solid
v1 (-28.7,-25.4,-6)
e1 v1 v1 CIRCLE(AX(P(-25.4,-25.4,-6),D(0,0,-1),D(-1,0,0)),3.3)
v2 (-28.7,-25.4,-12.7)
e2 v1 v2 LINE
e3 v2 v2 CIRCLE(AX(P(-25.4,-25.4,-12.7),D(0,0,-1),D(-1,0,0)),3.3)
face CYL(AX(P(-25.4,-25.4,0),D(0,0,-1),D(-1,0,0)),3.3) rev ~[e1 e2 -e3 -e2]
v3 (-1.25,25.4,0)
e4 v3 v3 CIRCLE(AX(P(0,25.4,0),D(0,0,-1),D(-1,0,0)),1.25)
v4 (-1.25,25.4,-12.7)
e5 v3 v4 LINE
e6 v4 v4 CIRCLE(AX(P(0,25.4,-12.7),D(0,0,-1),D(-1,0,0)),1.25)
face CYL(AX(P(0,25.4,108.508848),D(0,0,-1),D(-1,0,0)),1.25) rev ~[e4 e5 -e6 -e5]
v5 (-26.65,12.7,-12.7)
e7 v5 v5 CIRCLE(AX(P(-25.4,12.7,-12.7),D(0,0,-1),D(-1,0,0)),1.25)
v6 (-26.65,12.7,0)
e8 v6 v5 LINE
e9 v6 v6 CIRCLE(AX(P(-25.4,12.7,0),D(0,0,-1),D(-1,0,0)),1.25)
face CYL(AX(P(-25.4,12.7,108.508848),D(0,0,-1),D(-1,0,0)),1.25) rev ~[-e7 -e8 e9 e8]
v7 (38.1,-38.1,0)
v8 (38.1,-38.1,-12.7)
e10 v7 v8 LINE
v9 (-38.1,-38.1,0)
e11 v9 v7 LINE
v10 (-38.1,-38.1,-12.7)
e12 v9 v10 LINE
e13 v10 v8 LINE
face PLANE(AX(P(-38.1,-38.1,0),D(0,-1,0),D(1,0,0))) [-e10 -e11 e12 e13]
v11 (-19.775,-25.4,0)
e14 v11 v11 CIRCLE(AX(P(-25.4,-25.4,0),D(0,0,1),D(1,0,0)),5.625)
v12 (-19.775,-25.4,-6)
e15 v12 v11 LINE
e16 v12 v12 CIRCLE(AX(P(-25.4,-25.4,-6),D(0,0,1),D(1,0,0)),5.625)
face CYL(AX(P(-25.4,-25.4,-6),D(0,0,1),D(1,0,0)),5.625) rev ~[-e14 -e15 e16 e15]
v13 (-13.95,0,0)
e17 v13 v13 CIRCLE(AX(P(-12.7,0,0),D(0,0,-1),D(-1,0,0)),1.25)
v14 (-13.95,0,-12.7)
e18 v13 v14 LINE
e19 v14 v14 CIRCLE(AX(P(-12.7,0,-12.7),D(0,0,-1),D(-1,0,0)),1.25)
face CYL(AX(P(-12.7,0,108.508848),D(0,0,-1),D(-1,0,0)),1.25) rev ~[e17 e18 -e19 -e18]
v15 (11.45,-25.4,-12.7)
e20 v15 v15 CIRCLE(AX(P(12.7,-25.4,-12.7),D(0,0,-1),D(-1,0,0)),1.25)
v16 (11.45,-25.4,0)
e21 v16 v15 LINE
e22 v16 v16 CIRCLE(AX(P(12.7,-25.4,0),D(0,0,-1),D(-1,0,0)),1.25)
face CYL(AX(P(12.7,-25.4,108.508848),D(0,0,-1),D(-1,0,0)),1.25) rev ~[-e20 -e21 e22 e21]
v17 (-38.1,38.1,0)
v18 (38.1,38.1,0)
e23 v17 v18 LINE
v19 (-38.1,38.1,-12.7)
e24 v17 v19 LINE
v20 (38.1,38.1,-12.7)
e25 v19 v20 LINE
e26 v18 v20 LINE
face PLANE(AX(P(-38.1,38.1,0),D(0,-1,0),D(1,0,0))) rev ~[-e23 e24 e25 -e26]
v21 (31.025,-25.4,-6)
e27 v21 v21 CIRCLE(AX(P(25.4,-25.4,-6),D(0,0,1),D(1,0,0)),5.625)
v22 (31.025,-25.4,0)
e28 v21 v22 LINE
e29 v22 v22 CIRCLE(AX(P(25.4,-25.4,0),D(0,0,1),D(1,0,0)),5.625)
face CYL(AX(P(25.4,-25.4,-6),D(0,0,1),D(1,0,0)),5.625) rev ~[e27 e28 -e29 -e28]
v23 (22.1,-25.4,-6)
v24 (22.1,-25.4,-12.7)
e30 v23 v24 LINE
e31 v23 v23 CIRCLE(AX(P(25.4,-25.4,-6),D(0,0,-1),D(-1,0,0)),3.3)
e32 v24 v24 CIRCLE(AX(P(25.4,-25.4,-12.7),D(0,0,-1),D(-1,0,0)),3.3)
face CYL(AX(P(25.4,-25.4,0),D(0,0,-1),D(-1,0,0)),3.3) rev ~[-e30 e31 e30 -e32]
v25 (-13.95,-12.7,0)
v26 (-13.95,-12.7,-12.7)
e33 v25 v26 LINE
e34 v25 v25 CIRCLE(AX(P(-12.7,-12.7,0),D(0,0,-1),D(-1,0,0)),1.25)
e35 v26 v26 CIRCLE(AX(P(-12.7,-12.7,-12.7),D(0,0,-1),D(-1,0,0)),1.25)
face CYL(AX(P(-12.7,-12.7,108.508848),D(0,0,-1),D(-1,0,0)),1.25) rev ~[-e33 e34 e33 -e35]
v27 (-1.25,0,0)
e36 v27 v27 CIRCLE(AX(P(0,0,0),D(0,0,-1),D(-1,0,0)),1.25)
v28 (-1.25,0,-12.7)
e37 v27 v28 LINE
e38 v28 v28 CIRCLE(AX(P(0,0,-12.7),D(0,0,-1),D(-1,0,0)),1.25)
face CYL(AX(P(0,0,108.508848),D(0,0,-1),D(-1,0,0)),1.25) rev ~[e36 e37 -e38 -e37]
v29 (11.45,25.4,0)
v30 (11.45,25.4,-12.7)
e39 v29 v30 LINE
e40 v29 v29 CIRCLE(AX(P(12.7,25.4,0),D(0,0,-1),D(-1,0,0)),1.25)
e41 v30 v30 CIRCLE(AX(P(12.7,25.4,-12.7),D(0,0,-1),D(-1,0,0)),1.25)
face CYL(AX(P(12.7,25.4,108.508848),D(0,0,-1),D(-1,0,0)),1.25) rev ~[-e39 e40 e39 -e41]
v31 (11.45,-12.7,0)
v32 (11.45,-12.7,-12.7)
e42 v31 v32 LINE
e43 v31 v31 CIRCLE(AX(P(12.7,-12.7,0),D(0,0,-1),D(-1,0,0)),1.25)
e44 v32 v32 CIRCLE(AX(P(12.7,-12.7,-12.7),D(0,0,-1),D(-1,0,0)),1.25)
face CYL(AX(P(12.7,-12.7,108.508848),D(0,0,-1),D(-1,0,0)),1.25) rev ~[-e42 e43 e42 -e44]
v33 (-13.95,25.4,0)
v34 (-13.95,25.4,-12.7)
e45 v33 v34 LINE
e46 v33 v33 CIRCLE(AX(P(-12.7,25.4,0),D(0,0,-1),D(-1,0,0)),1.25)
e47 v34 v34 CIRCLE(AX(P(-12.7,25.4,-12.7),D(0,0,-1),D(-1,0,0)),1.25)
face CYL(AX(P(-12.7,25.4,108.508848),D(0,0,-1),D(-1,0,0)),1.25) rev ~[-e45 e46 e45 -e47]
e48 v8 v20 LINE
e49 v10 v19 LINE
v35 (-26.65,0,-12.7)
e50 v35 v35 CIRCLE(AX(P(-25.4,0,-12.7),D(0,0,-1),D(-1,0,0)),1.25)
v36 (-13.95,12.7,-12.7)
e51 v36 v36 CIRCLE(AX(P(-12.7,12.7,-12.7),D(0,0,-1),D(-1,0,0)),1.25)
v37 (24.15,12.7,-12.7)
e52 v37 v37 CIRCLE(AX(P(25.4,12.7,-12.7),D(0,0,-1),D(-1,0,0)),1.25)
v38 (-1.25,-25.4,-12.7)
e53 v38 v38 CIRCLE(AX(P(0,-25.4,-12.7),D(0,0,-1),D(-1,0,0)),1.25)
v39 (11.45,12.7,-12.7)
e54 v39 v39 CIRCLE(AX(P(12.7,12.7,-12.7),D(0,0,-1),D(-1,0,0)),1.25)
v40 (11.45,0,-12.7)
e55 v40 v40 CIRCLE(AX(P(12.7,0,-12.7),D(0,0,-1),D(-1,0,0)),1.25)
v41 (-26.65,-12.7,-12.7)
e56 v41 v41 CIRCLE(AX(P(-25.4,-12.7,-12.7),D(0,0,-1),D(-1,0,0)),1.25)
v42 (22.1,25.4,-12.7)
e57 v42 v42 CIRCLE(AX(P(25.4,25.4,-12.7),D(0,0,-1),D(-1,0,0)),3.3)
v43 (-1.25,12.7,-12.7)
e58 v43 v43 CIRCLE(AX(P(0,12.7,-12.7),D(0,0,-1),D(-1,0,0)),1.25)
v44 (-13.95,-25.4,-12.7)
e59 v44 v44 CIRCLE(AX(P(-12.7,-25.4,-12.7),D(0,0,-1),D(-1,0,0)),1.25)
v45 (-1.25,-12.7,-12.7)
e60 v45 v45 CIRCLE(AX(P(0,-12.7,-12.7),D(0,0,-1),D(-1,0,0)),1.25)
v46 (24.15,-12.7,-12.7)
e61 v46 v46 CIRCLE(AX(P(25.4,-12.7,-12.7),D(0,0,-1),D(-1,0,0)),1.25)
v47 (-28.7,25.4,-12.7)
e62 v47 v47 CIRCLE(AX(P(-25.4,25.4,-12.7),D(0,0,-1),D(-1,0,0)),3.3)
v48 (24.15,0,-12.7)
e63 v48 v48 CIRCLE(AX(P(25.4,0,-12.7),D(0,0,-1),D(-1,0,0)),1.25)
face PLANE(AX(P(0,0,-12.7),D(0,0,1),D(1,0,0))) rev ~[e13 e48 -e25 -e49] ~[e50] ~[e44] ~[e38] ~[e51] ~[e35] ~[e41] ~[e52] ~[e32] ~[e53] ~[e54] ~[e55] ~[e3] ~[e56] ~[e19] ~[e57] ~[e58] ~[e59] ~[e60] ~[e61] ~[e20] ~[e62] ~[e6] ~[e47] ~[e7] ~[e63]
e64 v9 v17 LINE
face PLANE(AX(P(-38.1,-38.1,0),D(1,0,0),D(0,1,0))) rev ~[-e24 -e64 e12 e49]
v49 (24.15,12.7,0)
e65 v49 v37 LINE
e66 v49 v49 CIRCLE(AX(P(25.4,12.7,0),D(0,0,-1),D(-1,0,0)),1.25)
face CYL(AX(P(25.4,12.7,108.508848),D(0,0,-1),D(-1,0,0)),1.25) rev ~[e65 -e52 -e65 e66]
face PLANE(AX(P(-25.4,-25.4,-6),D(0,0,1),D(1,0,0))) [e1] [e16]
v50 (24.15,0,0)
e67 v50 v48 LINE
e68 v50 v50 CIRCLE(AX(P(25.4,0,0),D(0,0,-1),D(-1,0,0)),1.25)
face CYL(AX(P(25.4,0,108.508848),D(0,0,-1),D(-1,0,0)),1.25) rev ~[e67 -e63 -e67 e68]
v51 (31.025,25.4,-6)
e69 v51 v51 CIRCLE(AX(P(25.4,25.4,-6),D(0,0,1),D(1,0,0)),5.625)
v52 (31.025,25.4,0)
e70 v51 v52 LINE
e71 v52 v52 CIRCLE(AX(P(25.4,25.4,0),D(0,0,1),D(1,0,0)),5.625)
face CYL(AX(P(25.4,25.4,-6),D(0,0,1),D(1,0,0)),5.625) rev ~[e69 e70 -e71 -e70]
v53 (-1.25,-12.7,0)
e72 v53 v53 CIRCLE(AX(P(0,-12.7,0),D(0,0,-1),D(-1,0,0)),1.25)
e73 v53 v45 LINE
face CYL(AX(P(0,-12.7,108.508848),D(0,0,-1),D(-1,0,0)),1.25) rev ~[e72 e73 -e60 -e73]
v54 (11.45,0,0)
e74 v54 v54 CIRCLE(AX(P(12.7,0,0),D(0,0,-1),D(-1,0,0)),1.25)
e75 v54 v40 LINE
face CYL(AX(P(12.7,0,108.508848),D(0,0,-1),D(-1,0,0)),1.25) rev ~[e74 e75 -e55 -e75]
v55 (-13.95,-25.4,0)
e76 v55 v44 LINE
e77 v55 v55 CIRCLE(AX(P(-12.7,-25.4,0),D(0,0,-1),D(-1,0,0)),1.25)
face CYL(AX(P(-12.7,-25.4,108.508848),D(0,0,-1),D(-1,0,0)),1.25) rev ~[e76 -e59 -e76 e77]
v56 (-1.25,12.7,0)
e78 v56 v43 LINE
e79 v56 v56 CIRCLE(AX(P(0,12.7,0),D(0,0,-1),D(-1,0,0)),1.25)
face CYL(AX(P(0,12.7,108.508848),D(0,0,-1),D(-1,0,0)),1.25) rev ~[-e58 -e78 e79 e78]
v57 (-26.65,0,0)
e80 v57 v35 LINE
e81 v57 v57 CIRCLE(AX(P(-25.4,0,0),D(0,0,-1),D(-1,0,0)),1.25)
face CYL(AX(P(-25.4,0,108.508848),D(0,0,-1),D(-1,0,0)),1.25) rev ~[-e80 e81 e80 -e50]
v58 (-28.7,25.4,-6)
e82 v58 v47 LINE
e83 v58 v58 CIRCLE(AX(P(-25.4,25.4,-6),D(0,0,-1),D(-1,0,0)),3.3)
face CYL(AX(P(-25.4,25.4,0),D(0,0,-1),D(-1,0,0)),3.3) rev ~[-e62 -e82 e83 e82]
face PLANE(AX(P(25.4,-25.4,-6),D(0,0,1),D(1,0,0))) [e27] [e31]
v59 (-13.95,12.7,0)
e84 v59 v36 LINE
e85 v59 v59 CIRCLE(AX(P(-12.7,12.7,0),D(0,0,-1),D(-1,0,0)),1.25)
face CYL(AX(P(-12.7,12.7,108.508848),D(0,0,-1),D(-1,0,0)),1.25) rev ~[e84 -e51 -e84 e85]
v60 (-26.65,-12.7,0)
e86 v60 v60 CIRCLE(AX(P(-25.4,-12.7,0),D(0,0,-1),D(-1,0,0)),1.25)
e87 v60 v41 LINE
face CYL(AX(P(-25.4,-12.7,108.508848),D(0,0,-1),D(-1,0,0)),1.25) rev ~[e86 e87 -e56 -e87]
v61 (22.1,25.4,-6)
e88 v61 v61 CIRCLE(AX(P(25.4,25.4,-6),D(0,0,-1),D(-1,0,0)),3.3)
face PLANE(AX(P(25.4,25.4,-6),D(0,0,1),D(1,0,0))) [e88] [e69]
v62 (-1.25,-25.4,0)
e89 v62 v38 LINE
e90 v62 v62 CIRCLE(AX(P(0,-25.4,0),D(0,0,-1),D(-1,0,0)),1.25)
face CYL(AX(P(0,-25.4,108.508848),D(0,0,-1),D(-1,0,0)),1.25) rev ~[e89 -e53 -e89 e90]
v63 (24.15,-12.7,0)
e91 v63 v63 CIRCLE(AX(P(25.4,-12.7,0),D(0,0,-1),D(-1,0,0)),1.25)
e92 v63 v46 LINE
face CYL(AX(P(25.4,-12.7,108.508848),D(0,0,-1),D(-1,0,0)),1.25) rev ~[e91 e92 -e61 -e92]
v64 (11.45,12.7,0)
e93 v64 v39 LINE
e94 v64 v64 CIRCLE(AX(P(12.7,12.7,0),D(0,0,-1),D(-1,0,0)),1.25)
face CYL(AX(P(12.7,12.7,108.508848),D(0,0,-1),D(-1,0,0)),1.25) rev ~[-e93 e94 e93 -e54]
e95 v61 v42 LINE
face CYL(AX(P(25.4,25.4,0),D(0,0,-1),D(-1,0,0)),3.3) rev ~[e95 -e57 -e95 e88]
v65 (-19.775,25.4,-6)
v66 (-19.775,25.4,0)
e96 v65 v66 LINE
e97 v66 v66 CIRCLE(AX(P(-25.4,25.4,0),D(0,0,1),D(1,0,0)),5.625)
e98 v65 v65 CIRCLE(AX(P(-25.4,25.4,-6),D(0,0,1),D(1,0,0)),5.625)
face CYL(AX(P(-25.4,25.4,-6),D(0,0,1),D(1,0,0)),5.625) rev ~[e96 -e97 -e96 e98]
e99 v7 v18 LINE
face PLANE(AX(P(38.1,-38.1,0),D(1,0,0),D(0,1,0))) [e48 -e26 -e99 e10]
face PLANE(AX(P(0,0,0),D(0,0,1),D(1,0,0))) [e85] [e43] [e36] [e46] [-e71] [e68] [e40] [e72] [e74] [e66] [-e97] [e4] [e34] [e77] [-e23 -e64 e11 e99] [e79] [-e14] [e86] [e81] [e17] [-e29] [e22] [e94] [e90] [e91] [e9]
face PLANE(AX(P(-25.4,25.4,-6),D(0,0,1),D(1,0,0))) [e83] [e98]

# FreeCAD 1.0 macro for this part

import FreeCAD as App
import Part
import Sketcher

V = App.Vector


def add_polygon(sketch, points):
    """Adds a closed chain of lines whose ends are joined by coincident constraints."""
    first, n = sketch.GeometryCount, len(points)
    for a, b in zip(points, points[1:] + points[:1]):
        sketch.addGeometry(Part.LineSegment(App.Vector(*a, 0), App.Vector(*b, 0)), False)
    for i in range(n):
        sketch.addConstraint(Sketcher.Constraint("Coincident", first + i, 2, first + (i + 1) % n, 1))

doc = App.newDocument("Part")
body = doc.addObject("PartDesign::Body", "Body")

# Sketch on XY plane
sketch1 = doc.addObject("Sketcher::SketchObject", "Sketch")
body.addObject(sketch1)
sketch1.AttachmentSupport = (doc.XY_Plane, [""])
sketch1.MapMode = "FlatFace"
add_polygon(sketch1, [(-38, 38), (-38, -38), (38, -38), (38, 38)])  # lines 0-3
sketch1.addConstraint([
    Sketcher.Constraint("Vertical", 0),
    Sketcher.Constraint("Horizontal", 1),
    Sketcher.Constraint("Vertical", 2),
    Sketcher.Constraint("Horizontal", 3),
    Sketcher.Constraint("Symmetric", 0, 2, 2, 2, -1, 1),
    Sketcher.Constraint("Equal", 3, 0),
    Sketcher.Constraint("DistanceX", 1, 1, 1, 2, 76.2),
])
pad1 = doc.addObject("PartDesign::Pad", "Pad")
body.addObject(pad1)
pad1.Profile = sketch1
pad1.Length = 12.7
pad1.Reversed = True

# Sketch on XY plane
sketch2 = doc.addObject("Sketcher::SketchObject", "Sketch001")
body.addObject(sketch2)
sketch2.AttachmentSupport = (doc.XY_Plane, [""])
sketch2.MapMode = "FlatFace"
sketch2.addGeometry([
    Part.Circle(V(-25.4, 12.7, 0), V(0, 0, 1), 1.2),  # 0
    Part.Circle(V(-12.7, 25.4, 0), V(0, 0, 1), 1.2),  # 1
    Part.Circle(V(-12.7, 12.7, 0), V(0, 0, 1), 1.2),  # 2
    Part.Circle(V(0, 12.7, 0), V(0, 0, 1), 1.2),  # 3
    Part.Circle(V(12.7, 25.4, 0), V(0, 0, 1), 1.2),  # 4
    Part.Circle(V(0, 25.4, 0), V(0, 0, 1), 1.2),  # 5
    Part.Circle(V(12.7, 12.7, 0), V(0, 0, 1), 1.2),  # 6
    Part.Circle(V(25.4, 12.7, 0), V(0, 0, 1), 1.2),  # 7
    Part.Circle(V(25.4, 0, 0), V(0, 0, 1), 1.2),  # 8
    Part.Circle(V(12.7, 0, 0), V(0, 0, 1), 1.2),  # 9
    Part.Circle(V(0, 0, 0), V(0, 0, 1), 1.2),  # 10
    Part.Circle(V(-12.7, 0, 0), V(0, 0, 1), 1.2),  # 11
    Part.Circle(V(-25.4, 0, 0), V(0, 0, 1), 1.2),  # 12
    Part.Circle(V(-25.4, -12.7, 0), V(0, 0, 1), 1.2),  # 13
    Part.Circle(V(-12.7, -12.7, 0), V(0, 0, 1), 1.2),  # 14
    Part.Circle(V(0, -12.7, 0), V(0, 0, 1), 1.2),  # 15
    Part.Circle(V(12.7, -12.7, 0), V(0, 0, 1), 1.2),  # 16
    Part.Circle(V(25.4, -12.7, 0), V(0, 0, 1), 1.2),  # 17
    Part.Circle(V(12.7, -25.4, 0), V(0, 0, 1), 1.2),  # 18
    Part.Circle(V(0, -25.4, 0), V(0, 0, 1), 1.2),  # 19
    Part.Circle(V(-12.7, -25.4, 0), V(0, 0, 1), 1.2),  # 20
], False)
sketch2.addConstraint([
    Sketcher.Constraint("Coincident", 10, 3, -1, 1),
    Sketcher.Constraint("Equal", 0, 1),
    Sketcher.Constraint("Equal", 1, 2),
    Sketcher.Constraint("Equal", 2, 3),
    Sketcher.Constraint("Equal", 3, 4),
    Sketcher.Constraint("Equal", 4, 5),
    Sketcher.Constraint("Equal", 5, 6),
    Sketcher.Constraint("Equal", 6, 7),
    Sketcher.Constraint("Equal", 7, 8),
    Sketcher.Constraint("Equal", 8, 9),
    Sketcher.Constraint("Equal", 9, 10),
    Sketcher.Constraint("Equal", 10, 11),
    Sketcher.Constraint("Equal", 11, 12),
    Sketcher.Constraint("Equal", 12, 13),
    Sketcher.Constraint("Equal", 13, 14),
    Sketcher.Constraint("Equal", 14, 15),
    Sketcher.Constraint("Equal", 15, 16),
    Sketcher.Constraint("Equal", 16, 17),
    Sketcher.Constraint("Equal", 17, 18),
    Sketcher.Constraint("Equal", 18, 19),
    Sketcher.Constraint("Equal", 19, 20),
    Sketcher.Constraint("Symmetric", 9, 3, 11, 3, -1, 1),
    Sketcher.Constraint("Symmetric", 8, 3, 12, 3, -1, 1),
    Sketcher.Constraint("Symmetric", 7, 3, 13, 3, -1, 1),
    Sketcher.Constraint("Symmetric", 6, 3, 14, 3, -1, 1),
    Sketcher.Constraint("Symmetric", 3, 3, 15, 3, -1, 1),
    Sketcher.Constraint("Symmetric", 2, 3, 16, 3, -1, 1),
    Sketcher.Constraint("Symmetric", 0, 3, 17, 3, -1, 1),
    Sketcher.Constraint("Symmetric", 1, 3, 18, 3, -1, 1),
    Sketcher.Constraint("Symmetric", 5, 3, 19, 3, -1, 1),
    Sketcher.Constraint("Symmetric", 4, 3, 20, 3, -1, 1),
    Sketcher.Constraint("Symmetric", 1, 3, 4, 3, -2),
    Sketcher.Constraint("Symmetric", 2, 3, 6, 3, -2),
    Sketcher.Constraint("Symmetric", 0, 3, 7, 3, -2),
    Sketcher.Constraint("PointOnObject", 3, 3, -2),
    Sketcher.Constraint("PointOnObject", 5, 3, -2),
    Sketcher.Constraint("PointOnObject", 8, 3, -1),
    Sketcher.Constraint("PointOnObject", 9, 3, -1),
    Sketcher.Constraint("Horizontal", 0, 3, 2, 3),
    Sketcher.Constraint("Horizontal", 2, 3, 3, 3),
    Sketcher.Constraint("Horizontal", 4, 3, 5, 3),
    Sketcher.Constraint("Vertical", 1, 3, 2, 3),
    Sketcher.Constraint("Vertical", 7, 3, 8, 3),
    Sketcher.Constraint("Vertical", 6, 3, 9, 3),
    Sketcher.Constraint("Diameter", 0, 2.5),
    Sketcher.Constraint("DistanceX", 0, 3, -1, 1, 25.4),
    Sketcher.Constraint("DistanceY", -1, 1, 0, 3, 12.7),
    Sketcher.Constraint("DistanceX", 1, 3, -1, 1, 12.7),
    Sketcher.Constraint("DistanceY", -1, 1, 1, 3, 25.4),
])
doc.recompute()
hole = doc.addObject("PartDesign::Hole", "Hole")
body.addObject(hole)
hole.Profile = sketch2
hole.ThreadType = "None"
hole.Diameter = 2.5
hole.DepthType = "ThroughAll"

# Sketch on XY plane
sketch3 = doc.addObject("Sketcher::SketchObject", "Sketch002")
body.addObject(sketch3)
sketch3.AttachmentSupport = (doc.XY_Plane, [""])
sketch3.MapMode = "FlatFace"
sketch3.addGeometry([
    Part.Circle(V(-25.4, 25.4, 0), V(0, 0, 1), 3.3),
    Part.Circle(V(25.4, 25.4, 0), V(0, 0, 1), 3.3),
    Part.Circle(V(25.4, -25.4, 0), V(0, 0, 1), 3.3),
    Part.Circle(V(-25.4, -25.4, 0), V(0, 0, 1), 3.3),
], False)
sketch3.addConstraint([
    Sketcher.Constraint("Equal", 0, 1),
    Sketcher.Constraint("Equal", 1, 2),
    Sketcher.Constraint("Equal", 2, 3),
    Sketcher.Constraint("Symmetric", 0, 3, 2, 3, -1, 1),
    Sketcher.Constraint("Symmetric", 1, 3, 3, 3, -1, 1),
    Sketcher.Constraint("Symmetric", 0, 3, 1, 3, -2),
    Sketcher.Constraint("Diameter", 0, 6.6),
    Sketcher.Constraint("DistanceX", 0, 3, -1, 1, 25.4),
    Sketcher.Constraint("DistanceY", -1, 1, 0, 3, 25.4),
])
doc.recompute()
hole2 = doc.addObject("PartDesign::Hole", "Hole001")
body.addObject(hole2)
hole2.Profile = sketch3
hole2.ThreadType = "None"
hole2.Diameter = 6.6
hole2.DepthType = "ThroughAll"
hole2.HoleCutType = "Counterbore"
hole2.HoleCutDiameter = 11.25
hole2.HoleCutDepth = 6

doc.recompute()
